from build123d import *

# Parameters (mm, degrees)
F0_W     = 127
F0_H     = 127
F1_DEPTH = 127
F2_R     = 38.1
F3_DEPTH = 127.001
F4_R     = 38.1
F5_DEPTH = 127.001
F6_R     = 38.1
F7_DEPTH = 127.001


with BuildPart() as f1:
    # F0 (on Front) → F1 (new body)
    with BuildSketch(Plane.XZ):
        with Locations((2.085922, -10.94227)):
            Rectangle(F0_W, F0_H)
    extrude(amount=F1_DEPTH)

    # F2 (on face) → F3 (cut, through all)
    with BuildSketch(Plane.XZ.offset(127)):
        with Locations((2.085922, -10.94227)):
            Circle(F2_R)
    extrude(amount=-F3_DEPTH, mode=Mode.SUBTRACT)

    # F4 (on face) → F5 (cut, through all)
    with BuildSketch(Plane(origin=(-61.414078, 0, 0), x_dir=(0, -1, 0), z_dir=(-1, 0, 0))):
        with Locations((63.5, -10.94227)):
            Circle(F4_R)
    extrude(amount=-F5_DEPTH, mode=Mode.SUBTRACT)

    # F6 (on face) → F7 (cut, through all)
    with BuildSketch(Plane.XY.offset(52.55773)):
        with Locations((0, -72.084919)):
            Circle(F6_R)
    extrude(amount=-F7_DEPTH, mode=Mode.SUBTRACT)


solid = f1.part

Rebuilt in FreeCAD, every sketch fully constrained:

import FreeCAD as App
import Part
import Sketcher

V = App.Vector
Q = App.Units.Quantity


def add_polygon(sketch, points):
    """Adds a closed chain of lines whose ends are joined by coincident constraints."""
    first, n = sketch.GeometryCount, len(points)
    for a, b in zip(points, points[1:] + points[:1]):
        sketch.addGeometry(Part.LineSegment(App.Vector(*a, 0), App.Vector(*b, 0)), False)
    for i in range(n):
        sketch.addConstraint(Sketcher.Constraint("Coincident", first + i, 2, first + (i + 1) % n, 1))

doc = App.newDocument("Part")
params = doc.addObject("Spreadsheet::Sheet", "Params")
for row, (alias, value) in enumerate([
    ("sketch1_width", "5 in"),
    ("pad1_length", "5 in"),
    ("sketch2_diameter", "3 in"),
    ("sketch3_diameter", "3 in"),
    ("sketch4_diameter", "3 in"),
], start=1):
    params.set(f"A{row}", alias)
    params.set(f"B{row}", "=" + value)
    params.setAlias(f"B{row}", alias)

body = doc.addObject("PartDesign::Body", "Body")

sketch1 = doc.addObject("Sketcher::SketchObject", "Sketch")
body.addObject(sketch1)
sketch1.AttachmentSupport = (doc.XZ_Plane, [""])
sketch1.MapMode = "FlatFace"
add_polygon(sketch1, [(-61, 53), (-61, -74), (66, -74), (66, 53)])
sketch1.addConstraint(Sketcher.Constraint("Vertical", 0))
sketch1.addConstraint(Sketcher.Constraint("Horizontal", 1))
sketch1.addConstraint(Sketcher.Constraint("Vertical", 2))
sketch1.addConstraint(Sketcher.Constraint("Horizontal", 3))
sketch1.addConstraint(Sketcher.Constraint("Equal", 3, 0))
sketch1.addConstraint(Sketcher.Constraint("DistanceX", 1, 1, 1, 2, Q("5 in")))
sketch1.addConstraint(Sketcher.Constraint("DistanceX", 0, 2, -1, 1, 61.414078))
sketch1.addConstraint(Sketcher.Constraint("DistanceY", 0, 2, -1, 1, 74.44227))
sketch1.setExpression("Constraints[9]", "Params.sketch1_width")
pad1 = doc.addObject("PartDesign::Pad", "Pad")
body.addObject(pad1)
pad1.Profile = sketch1
pad1.setExpression("Length", "Params.pad1_length")

sketch2 = doc.addObject("Sketcher::SketchObject", "Sketch001")
body.addObject(sketch2)
sketch2.AttachmentSupport = (doc.XZ_Plane, [""])
sketch2.MapMode = "FlatFace"
sketch2.AttachmentOffset = App.Placement(V(0, 0, 5 * 25.4), App.Rotation())
sketch2.addGeometry(Part.Circle(V(2, -11, 0), V(0, 0, 1), 38), False)
sketch2.addConstraint(Sketcher.Constraint("Diameter", 0, Q("3 in")))
sketch2.addConstraint(Sketcher.Constraint("DistanceX", -1, 1, 0, 3, 2.085922))
sketch2.addConstraint(Sketcher.Constraint("DistanceY", 0, 3, -1, 1, 10.94227))
sketch2.setExpression("Constraints[0]", "Params.sketch2_diameter")
pocket1 = doc.addObject("PartDesign::Pocket", "Pocket")
body.addObject(pocket1)
pocket1.Profile = sketch2
pocket1.Type = "ThroughAll"

sketch3 = doc.addObject("Sketcher::SketchObject", "Sketch002")
body.addObject(sketch3)
sketch3.AttachmentSupport = (doc.YZ_Plane, [""])
sketch3.MapMode = "FlatFace"
sketch3.AttachmentOffset = App.Placement(V(0, 0, -61.414078), App.Rotation())
sketch3.addGeometry(Part.Circle(V(-64, -11, 0), V(0, 0, 1), 38), False)
sketch3.addConstraint(Sketcher.Constraint("Diameter", 0, Q("3 in")))
sketch3.addConstraint(Sketcher.Constraint("DistanceX", 0, 3, -1, 1, Q("2.5 in")))
sketch3.addConstraint(Sketcher.Constraint("DistanceY", 0, 3, -1, 1, 10.94227))
sketch3.setExpression("Constraints[0]", "Params.sketch3_diameter")
pocket2 = doc.addObject("PartDesign::Pocket", "Pocket001")
body.addObject(pocket2)
pocket2.Profile = sketch3
pocket2.Type = "ThroughAll"
pocket2.Reversed = True

sketch4 = doc.addObject("Sketcher::SketchObject", "Sketch003")
body.addObject(sketch4)
sketch4.AttachmentSupport = (doc.XY_Plane, [""])
sketch4.MapMode = "FlatFace"
sketch4.AttachmentOffset = App.Placement(V(0, 0, 52.55773), App.Rotation())
sketch4.addGeometry(Part.Circle(V(0, -72, 0), V(0, 0, 1), 38), False)
sketch4.addConstraint(Sketcher.Constraint("PointOnObject", 0, 3, -2))
sketch4.addConstraint(Sketcher.Constraint("Diameter", 0, Q("3 in")))
sketch4.addConstraint(Sketcher.Constraint("DistanceY", 0, 3, -1, 1, 72.084919))
sketch4.setExpression("Constraints[1]", "Params.sketch4_diameter")
pocket3 = doc.addObject("PartDesign::Pocket", "Pocket002")
body.addObject(pocket3)
pocket3.Profile = sketch4
pocket3.Type = "ThroughAll"

doc.recompute()
